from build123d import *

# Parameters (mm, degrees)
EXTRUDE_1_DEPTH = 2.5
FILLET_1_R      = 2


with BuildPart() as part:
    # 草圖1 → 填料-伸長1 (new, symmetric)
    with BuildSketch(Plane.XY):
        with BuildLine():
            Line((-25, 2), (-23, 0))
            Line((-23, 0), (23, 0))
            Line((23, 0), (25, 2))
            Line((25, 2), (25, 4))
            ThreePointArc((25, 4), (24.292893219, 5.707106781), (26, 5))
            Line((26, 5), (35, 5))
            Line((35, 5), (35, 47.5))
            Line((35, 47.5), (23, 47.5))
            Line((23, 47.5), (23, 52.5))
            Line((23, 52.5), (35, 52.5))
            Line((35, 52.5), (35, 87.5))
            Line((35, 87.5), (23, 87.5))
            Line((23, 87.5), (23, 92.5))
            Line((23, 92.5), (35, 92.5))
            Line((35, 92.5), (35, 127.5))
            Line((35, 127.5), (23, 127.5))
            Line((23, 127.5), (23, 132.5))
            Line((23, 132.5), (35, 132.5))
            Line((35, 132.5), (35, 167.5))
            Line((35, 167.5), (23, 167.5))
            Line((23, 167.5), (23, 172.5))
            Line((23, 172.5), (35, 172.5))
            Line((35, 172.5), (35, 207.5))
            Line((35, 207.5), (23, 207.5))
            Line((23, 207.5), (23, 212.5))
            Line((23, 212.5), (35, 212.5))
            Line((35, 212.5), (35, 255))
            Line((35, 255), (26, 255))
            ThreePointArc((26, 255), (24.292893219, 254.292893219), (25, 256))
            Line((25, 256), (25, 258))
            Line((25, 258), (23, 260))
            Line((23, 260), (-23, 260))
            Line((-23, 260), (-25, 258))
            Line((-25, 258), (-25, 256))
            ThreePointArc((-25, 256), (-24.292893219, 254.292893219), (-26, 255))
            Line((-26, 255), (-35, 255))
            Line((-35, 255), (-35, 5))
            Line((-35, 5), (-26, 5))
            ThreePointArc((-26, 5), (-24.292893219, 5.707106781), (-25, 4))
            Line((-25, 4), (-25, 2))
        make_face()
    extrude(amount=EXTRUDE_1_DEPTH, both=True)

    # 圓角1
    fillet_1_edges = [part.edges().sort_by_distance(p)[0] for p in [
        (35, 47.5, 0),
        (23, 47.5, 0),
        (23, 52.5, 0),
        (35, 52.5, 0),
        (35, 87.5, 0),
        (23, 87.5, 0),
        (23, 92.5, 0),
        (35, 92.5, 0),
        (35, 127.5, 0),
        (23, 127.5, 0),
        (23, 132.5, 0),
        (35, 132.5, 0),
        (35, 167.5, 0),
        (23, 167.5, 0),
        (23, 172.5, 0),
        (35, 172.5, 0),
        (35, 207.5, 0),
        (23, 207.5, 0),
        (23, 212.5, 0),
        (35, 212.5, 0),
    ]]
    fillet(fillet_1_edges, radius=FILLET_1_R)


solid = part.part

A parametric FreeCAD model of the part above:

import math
import FreeCAD as App
import Part
import Sketcher
from FreeCAD import Vector
Q = App.Units.Quantity


def edges_at(feature, points):
    """Names of the edges that pass closest to the given points."""
    edges = feature.Shape.Edges
    near = lambda p: min(range(len(edges)), key=lambda i: edges[i].distToShape(Part.Vertex(*p))[0])
    return sorted({f"Edge{near(p) + 1}" for p in points})

doc = App.newDocument("Part")
params = doc.addObject("Spreadsheet::Sheet", "Params")
for row, (alias, value) in enumerate([
    ("sketch1_radius", "1 mm"),
    ("sketch1_width", "46 mm"),
    ("sketch1_width2", "9 mm"),
    ("sketch1_width3", "12 mm"),
    ("sketch1_height", "2 mm"),
    ("pad1_length", "5 mm"),
    ("fillet_radius", "2 mm"),
], start=1):
    params.set(f"A{row}", alias)
    params.set(f"B{row}", "=" + value)
    params.setAlias(f"B{row}", alias)

body = doc.addObject("PartDesign::Body", "Body")

# Sketch on XY plane
sketch1 = doc.addObject("Sketcher::SketchObject", "Sketch")
body.addObject(sketch1)
sketch1.AttachmentSupport = (doc.XY_Plane, [""])
sketch1.MapMode = "FlatFace"
sketch1.addGeometry([
    Part.LineSegment(Vector(-25, 2, 0), Vector(-23, 0, 0)),  # 0
    Part.LineSegment(Vector(-23, 0, 0), Vector(23, 0, 0)),  # 1
    Part.LineSegment(Vector(23, 0, 0), Vector(25, 2, 0)),  # 2
    Part.LineSegment(Vector(25, 2, 0), Vector(25, 4, 0)),  # 3
    Part.ArcOfCircle(Part.Circle(Vector(25, 5, 0), Vector(0, 0, 1), 1), math.radians(0), math.radians(270)),  # 4
    Part.LineSegment(Vector(26, 5, 0), Vector(35, 5, 0)),  # 5
    Part.LineSegment(Vector(35, 5, 0), Vector(35, 47.5, 0)),  # 6
    Part.LineSegment(Vector(35, 47.5, 0), Vector(23, 47.5, 0)),  # 7
    Part.LineSegment(Vector(23, 47.5, 0), Vector(23, 52.5, 0)),  # 8
    Part.LineSegment(Vector(23, 52.5, 0), Vector(35, 52.5, 0)),  # 9
    Part.LineSegment(Vector(35, 52.5, 0), Vector(35, 87.5, 0)),  # 10
    Part.LineSegment(Vector(35, 87.5, 0), Vector(23, 87.5, 0)),  # 11
    Part.LineSegment(Vector(23, 87.5, 0), Vector(23, 92.5, 0)),  # 12
    Part.LineSegment(Vector(23, 92.5, 0), Vector(35, 92.5, 0)),  # 13
    Part.LineSegment(Vector(35, 92.5, 0), Vector(35, 127.5, 0)),  # 14
    Part.LineSegment(Vector(35, 127.5, 0), Vector(23, 127.5, 0)),  # 15
    Part.LineSegment(Vector(23, 127.5, 0), Vector(23, 132.5, 0)),  # 16
    Part.LineSegment(Vector(23, 132.5, 0), Vector(35, 132.5, 0)),  # 17
    Part.LineSegment(Vector(35, 132.5, 0), Vector(35, 167.5, 0)),  # 18
    Part.LineSegment(Vector(35, 167.5, 0), Vector(23, 167.5, 0)),  # 19
    Part.LineSegment(Vector(23, 167.5, 0), Vector(23, 172.5, 0)),  # 20
    Part.LineSegment(Vector(23, 172.5, 0), Vector(35, 172.5, 0)),  # 21
    Part.LineSegment(Vector(35, 172.5, 0), Vector(35, 207.5, 0)),  # 22
    Part.LineSegment(Vector(35, 207.5, 0), Vector(23, 207.5, 0)),  # 23
    Part.LineSegment(Vector(23, 207.5, 0), Vector(23, 212.5, 0)),  # 24
    Part.LineSegment(Vector(23, 212.5, 0), Vector(35, 212.5, 0)),  # 25
    Part.LineSegment(Vector(35, 212.5, 0), Vector(35, 255, 0)),  # 26
    Part.LineSegment(Vector(35, 255, 0), Vector(26, 255, 0)),  # 27
    Part.ArcOfCircle(Part.Circle(Vector(25, 255, 0), Vector(0, 0, 1), 1), math.radians(90), math.radians(360)),  # 28
    Part.LineSegment(Vector(25, 256, 0), Vector(25, 258, 0)),  # 29
    Part.LineSegment(Vector(25, 258, 0), Vector(23, 260, 0)),  # 30
    Part.LineSegment(Vector(23, 260, 0), Vector(-23, 260, 0)),  # 31
    Part.LineSegment(Vector(-23, 260, 0), Vector(-25, 258, 0)),  # 32
    Part.LineSegment(Vector(-25, 258, 0), Vector(-25, 256, 0)),  # 33
    Part.ArcOfCircle(Part.Circle(Vector(-25, 255, 0), Vector(0, 0, 1), 1), math.radians(180), math.radians(450)),  # 34
    Part.LineSegment(Vector(-26, 255, 0), Vector(-35, 255, 0)),  # 35
    Part.LineSegment(Vector(-35, 255, 0), Vector(-35, 5, 0)),  # 36
    Part.LineSegment(Vector(-35, 5, 0), Vector(-26, 5, 0)),  # 37
    Part.ArcOfCircle(Part.Circle(Vector(-25, 5, 0), Vector(0, 0, 1), 1), math.radians(-90), math.radians(180)),  # 38
    Part.LineSegment(Vector(-25, 4, 0), Vector(-25, 2, 0)),  # 39
], False)
sketch1.addConstraint([
    Sketcher.Constraint("Coincident", 0, 2, 1, 1),
    Sketcher.Constraint("Coincident", 1, 2, 2, 1),
    Sketcher.Constraint("Coincident", 2, 2, 3, 1),
    Sketcher.Constraint("Coincident", 3, 2, 4, 2),
    Sketcher.Constraint("Coincident", 4, 1, 5, 1),
    Sketcher.Constraint("Coincident", 5, 2, 6, 1),
    Sketcher.Constraint("Coincident", 6, 2, 7, 1),
    Sketcher.Constraint("Coincident", 7, 2, 8, 1),
    Sketcher.Constraint("Coincident", 8, 2, 9, 1),
    Sketcher.Constraint("Coincident", 9, 2, 10, 1),
    Sketcher.Constraint("Coincident", 10, 2, 11, 1),
    Sketcher.Constraint("Coincident", 11, 2, 12, 1),
    Sketcher.Constraint("Coincident", 12, 2, 13, 1),
    Sketcher.Constraint("Coincident", 13, 2, 14, 1),
    Sketcher.Constraint("Coincident", 14, 2, 15, 1),
    Sketcher.Constraint("Coincident", 15, 2, 16, 1),
    Sketcher.Constraint("Coincident", 16, 2, 17, 1),
    Sketcher.Constraint("Coincident", 17, 2, 18, 1),
    Sketcher.Constraint("Coincident", 18, 2, 19, 1),
    Sketcher.Constraint("Coincident", 19, 2, 20, 1),
    Sketcher.Constraint("Coincident", 20, 2, 21, 1),
    Sketcher.Constraint("Coincident", 21, 2, 22, 1),
    Sketcher.Constraint("Coincident", 22, 2, 23, 1),
    Sketcher.Constraint("Coincident", 23, 2, 24, 1),
    Sketcher.Constraint("Coincident", 24, 2, 25, 1),
    Sketcher.Constraint("Coincident", 25, 2, 26, 1),
    Sketcher.Constraint("Coincident", 26, 2, 27, 1),
    Sketcher.Constraint("Coincident", 27, 2, 28, 2),
    Sketcher.Constraint("Coincident", 28, 1, 29, 1),
    Sketcher.Constraint("Coincident", 29, 2, 30, 1),
    Sketcher.Constraint("Coincident", 30, 2, 31, 1),
    Sketcher.Constraint("Coincident", 31, 2, 32, 1),
    Sketcher.Constraint("Coincident", 32, 2, 33, 1),
    Sketcher.Constraint("Coincident", 33, 2, 34, 2),
    Sketcher.Constraint("Coincident", 34, 1, 35, 1),
    Sketcher.Constraint("Coincident", 35, 2, 36, 1),
    Sketcher.Constraint("Coincident", 36, 2, 37, 1),
    Sketcher.Constraint("Coincident", 37, 2, 38, 2),
    Sketcher.Constraint("Coincident", 38, 1, 39, 1),
    Sketcher.Constraint("Coincident", 39, 2, 0, 1),
    Sketcher.Constraint("Horizontal", 1),
    Sketcher.Constraint("Vertical", 3),
    Sketcher.Constraint("Horizontal", 5),
    Sketcher.Constraint("Vertical", 6),
    Sketcher.Constraint("Horizontal", 7),
    Sketcher.Constraint("Vertical", 8),
    Sketcher.Constraint("Horizontal", 9),
    Sketcher.Constraint("Vertical", 10),
    Sketcher.Constraint("Horizontal", 11),
    Sketcher.Constraint("Vertical", 12),
    Sketcher.Constraint("Horizontal", 13),
    Sketcher.Constraint("Vertical", 14),
    Sketcher.Constraint("Horizontal", 15),
    Sketcher.Constraint("Vertical", 16),
    Sketcher.Constraint("Horizontal", 17),
    Sketcher.Constraint("Vertical", 18),
    Sketcher.Constraint("Horizontal", 19),
    Sketcher.Constraint("Vertical", 20),
    Sketcher.Constraint("Horizontal", 21),
    Sketcher.Constraint("Vertical", 22),
    Sketcher.Constraint("Horizontal", 23),
    Sketcher.Constraint("Vertical", 24),
    Sketcher.Constraint("Horizontal", 25),
    Sketcher.Constraint("Vertical", 26),
    Sketcher.Constraint("Horizontal", 27),
    Sketcher.Constraint("Vertical", 29),
    Sketcher.Constraint("Horizontal", 31),
    Sketcher.Constraint("Vertical", 33),
    Sketcher.Constraint("Horizontal", 35),
    Sketcher.Constraint("Vertical", 36),
    Sketcher.Constraint("Horizontal", 37),
    Sketcher.Constraint("Vertical", 39),
    Sketcher.Constraint("Equal", 4, 28),
    Sketcher.Constraint("Equal", 28, 34),
    Sketcher.Constraint("Equal", 34, 38),
    Sketcher.Constraint("Symmetric", 0, 2, 1, 2, -1, 1),
    Sketcher.Constraint("Symmetric", 28, 3, 34, 3, -2),
    Sketcher.Constraint("Symmetric", 4, 3, 38, 3, -2),
    Sketcher.Constraint("Symmetric", 29, 2, 32, 2, -2),
    Sketcher.Constraint("Symmetric", 26, 2, 35, 2, -2),
    Sketcher.Constraint("Symmetric", 5, 2, 36, 2, -2),
    Sketcher.Constraint("Symmetric", 2, 2, 39, 2, -2),
    Sketcher.Constraint("Perpendicular", 0, 2),
    Sketcher.Constraint("Perpendicular", 2, 30),
    Sketcher.Constraint("Perpendicular", 30, 32),
    Sketcher.Constraint("Horizontal", 38, 3, 4, 1),
    Sketcher.Constraint("Horizontal", 34, 3, 26, 2),
    Sketcher.Constraint("Vertical", 4, 3, 28, 3),
    Sketcher.Constraint("Vertical", 28, 3, 2, 2),
    Sketcher.Constraint("Vertical", 1, 2, 7, 2),
    Sketcher.Constraint("Vertical", 6, 2, 9, 2),
    Sketcher.Constraint("Vertical", 8, 2, 11, 2),
    Sketcher.Constraint("Vertical", 10, 2, 13, 2),
    Sketcher.Constraint("Vertical", 12, 2, 15, 2),
    Sketcher.Constraint("Vertical", 14, 2, 17, 2),
    Sketcher.Constraint("Vertical", 16, 2, 19, 2),
    Sketcher.Constraint("Vertical", 18, 2, 21, 2),
    Sketcher.Constraint("Vertical", 20, 2, 23, 2),
    Sketcher.Constraint("Vertical", 3, 2, 28, 1),
    Sketcher.Constraint("Vertical", 24, 2, 30, 2),
    Sketcher.Constraint("Equal", 8, 12),
    Sketcher.Constraint("Equal", 10, 14),
    Sketcher.Constraint("Equal", 12, 16),
    Sketcher.Constraint("Equal", 14, 18),
    Sketcher.Constraint("Equal", 16, 20),
    Sketcher.Constraint("Equal", 18, 22),
    Sketcher.Constraint("Equal", 20, 24),
    Sketcher.Constraint("Equal", 6, 26),
    Sketcher.Constraint("Equal", 3, 29),
    Sketcher.Constraint("Radius", 4, Q("1 mm")),
    Sketcher.Constraint("DistanceX", 1, 1, 1, 2, Q("46 mm")),
    Sketcher.Constraint("DistanceX", 5, 1, 5, 2, Q("9 mm")),
    Sketcher.Constraint("DistanceX", 7, 2, 7, 1, Q("12 mm")),
    Sketcher.Constraint("DistanceY", 3, 1, 3, 2, Q("2 mm")),
    Sketcher.Constraint("DistanceY", 8, 1, 8, 2, Q("5 mm")),
    Sketcher.Constraint("DistanceY", 10, 1, 10, 2, Q("35 mm")),
    Sketcher.Constraint("DistanceY", 36, 2, 36, 1, Q("250 mm")),
])
sketch1.setExpression("Constraints[109]", "Params.sketch1_radius")
sketch1.setExpression("Constraints[110]", "Params.sketch1_width")
sketch1.setExpression("Constraints[111]", "Params.sketch1_width2")
sketch1.setExpression("Constraints[112]", "Params.sketch1_width3")
sketch1.setExpression("Constraints[113]", "Params.sketch1_height")
pad1 = doc.addObject("PartDesign::Pad", "Pad")
body.addObject(pad1)
pad1.Profile = sketch1
pad1.setExpression("Length", "Params.pad1_length")
pad1.Midplane = True
doc.recompute()

fillet = doc.addObject("PartDesign::Fillet", "Fillet")
body.addObject(fillet)
fillet.Base = (pad1, edges_at(pad1, [
    (35, 47.5, 0),
    (23, 47.5, 0),
    (23, 52.5, 0),
    (35, 52.5, 0),
    (35, 87.5, 0),
    (23, 87.5, 0),
    (23, 92.5, 0),
    (35, 92.5, 0),
    (35, 127.5, 0),
    (23, 127.5, 0),
    (23, 132.5, 0),
    (35, 132.5, 0),
    (35, 167.5, 0),
    (23, 167.5, 0),
    (23, 172.5, 0),
    (35, 172.5, 0),
    (35, 207.5, 0),
    (23, 207.5, 0),
    (23, 212.5, 0),
    (35, 212.5, 0),
]))
fillet.setExpression("Radius", "Params.fillet_radius")

doc.recompute()
